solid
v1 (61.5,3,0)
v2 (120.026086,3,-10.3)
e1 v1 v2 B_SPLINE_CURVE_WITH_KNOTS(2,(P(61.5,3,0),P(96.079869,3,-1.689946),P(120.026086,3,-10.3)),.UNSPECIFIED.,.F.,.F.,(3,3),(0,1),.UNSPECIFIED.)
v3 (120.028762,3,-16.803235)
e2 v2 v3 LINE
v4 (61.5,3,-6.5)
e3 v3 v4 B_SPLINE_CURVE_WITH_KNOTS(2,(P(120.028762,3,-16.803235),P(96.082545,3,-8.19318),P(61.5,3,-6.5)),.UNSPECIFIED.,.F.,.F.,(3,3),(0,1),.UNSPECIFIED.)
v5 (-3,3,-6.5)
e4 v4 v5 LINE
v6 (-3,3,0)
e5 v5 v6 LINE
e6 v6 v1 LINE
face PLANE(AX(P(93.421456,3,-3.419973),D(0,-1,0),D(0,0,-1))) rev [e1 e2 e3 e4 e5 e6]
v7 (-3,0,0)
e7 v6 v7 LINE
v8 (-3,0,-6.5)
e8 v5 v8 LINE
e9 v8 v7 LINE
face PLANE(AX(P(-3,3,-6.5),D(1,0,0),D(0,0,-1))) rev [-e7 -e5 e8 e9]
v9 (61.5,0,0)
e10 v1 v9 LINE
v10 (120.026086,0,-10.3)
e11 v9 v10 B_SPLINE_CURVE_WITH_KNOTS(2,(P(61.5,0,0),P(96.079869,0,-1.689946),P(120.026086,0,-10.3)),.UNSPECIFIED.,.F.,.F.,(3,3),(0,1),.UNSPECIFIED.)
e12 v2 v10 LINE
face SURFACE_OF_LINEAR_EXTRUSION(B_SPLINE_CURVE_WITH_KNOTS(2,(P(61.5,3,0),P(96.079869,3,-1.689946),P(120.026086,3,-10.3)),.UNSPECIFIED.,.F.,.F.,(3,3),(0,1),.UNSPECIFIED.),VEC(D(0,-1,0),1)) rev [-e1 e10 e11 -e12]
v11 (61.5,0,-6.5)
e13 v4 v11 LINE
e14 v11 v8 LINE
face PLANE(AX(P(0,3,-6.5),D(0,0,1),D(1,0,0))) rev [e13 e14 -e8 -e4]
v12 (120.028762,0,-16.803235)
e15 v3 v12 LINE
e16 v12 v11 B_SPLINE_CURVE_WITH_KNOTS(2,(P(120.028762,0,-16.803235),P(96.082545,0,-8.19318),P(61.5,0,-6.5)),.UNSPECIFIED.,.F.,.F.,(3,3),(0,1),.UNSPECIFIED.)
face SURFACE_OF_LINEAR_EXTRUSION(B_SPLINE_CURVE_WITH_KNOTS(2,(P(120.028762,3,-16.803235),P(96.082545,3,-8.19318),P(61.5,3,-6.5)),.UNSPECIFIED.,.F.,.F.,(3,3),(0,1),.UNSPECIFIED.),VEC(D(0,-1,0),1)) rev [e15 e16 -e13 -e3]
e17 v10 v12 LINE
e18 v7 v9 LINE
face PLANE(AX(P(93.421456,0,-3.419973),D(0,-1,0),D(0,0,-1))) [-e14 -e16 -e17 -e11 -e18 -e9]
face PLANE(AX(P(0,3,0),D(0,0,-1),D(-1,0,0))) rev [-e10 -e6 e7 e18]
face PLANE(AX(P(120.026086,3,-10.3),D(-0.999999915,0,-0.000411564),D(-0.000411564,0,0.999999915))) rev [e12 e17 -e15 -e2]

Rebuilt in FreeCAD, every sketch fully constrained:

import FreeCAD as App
import Part
import Sketcher

V = App.Vector

doc = App.newDocument("Part")
params = doc.addObject("Spreadsheet::Sheet", "Params")
for row, (alias, value) in enumerate([
    ("sketch1_width", "64.5 mm"),
    ("pad1_length", "3 mm"),
], start=1):
    params.set(f"A{row}", alias)
    params.set(f"B{row}", "=" + value)
    params.setAlias(f"B{row}", alias)

body = doc.addObject("PartDesign::Body", "Body")

# Sketch on XZ plane
sketch1 = body.newObject("Sketcher::SketchObject", "Sketch")
sketch1.AttachmentSupport = (doc.getObject("XZ_Plane"), [""])
sketch1.MapMode = "FlatFace"
sketch1.addGeometry([
    Part.BSplineCurve([V(61.5, 0, 0), V(96.079869, -1.689946, 0), V(120.026086, -10.3, 0)], [3, 3], [0, 1], False, 2, [1, 1, 1], False),  # 0
    Part.LineSegment(V(120.026086, -10.3, 0), V(120.028762, -16.803235, 0)),  # 1
    Part.BSplineCurve([V(61.5, -6.5, 0), V(96.082545, -8.19318, 0), V(120.028762, -16.803235, 0)], [3, 3], [0, 1], False, 2, [1, 1, 1], False),  # 2
    Part.LineSegment(V(61.5, -6.5, 0), V(-3, -6.5, 0)),  # 3
    Part.LineSegment(V(-3, -6.5, 0), V(-3, 0, 0)),  # 4
    Part.LineSegment(V(-3, 0, 0), V(61.5, 0, 0)),  # 5
], False)
sketch1.addConstraint([
    Sketcher.Constraint("Block", 0),
    Sketcher.Constraint("Block", 2),
    Sketcher.Constraint("Coincident", 0, 2, 1, 1),
    Sketcher.Constraint("Coincident", 1, 2, 2, 2),
    Sketcher.Constraint("Coincident", 2, 1, 3, 1),
    Sketcher.Constraint("Coincident", 3, 2, 4, 1),
    Sketcher.Constraint("Coincident", 4, 2, 5, 1),
    Sketcher.Constraint("Coincident", 5, 2, 0, 1),
    Sketcher.Constraint("Horizontal", 3),
    Sketcher.Constraint("Vertical", 4),
    Sketcher.Constraint("Horizontal", 5),
    Sketcher.Constraint("DistanceX", 3, 2, 3, 1, 64.5),
])
sketch1.setExpression("Constraints[11]", "Params.sketch1_width")
pad1 = body.newObject("PartDesign::Pad", "Pad")
pad1.Profile = sketch1
pad1.setExpression("Length", "Params.pad1_length")
pad1.Reversed = True

doc.recompute()
